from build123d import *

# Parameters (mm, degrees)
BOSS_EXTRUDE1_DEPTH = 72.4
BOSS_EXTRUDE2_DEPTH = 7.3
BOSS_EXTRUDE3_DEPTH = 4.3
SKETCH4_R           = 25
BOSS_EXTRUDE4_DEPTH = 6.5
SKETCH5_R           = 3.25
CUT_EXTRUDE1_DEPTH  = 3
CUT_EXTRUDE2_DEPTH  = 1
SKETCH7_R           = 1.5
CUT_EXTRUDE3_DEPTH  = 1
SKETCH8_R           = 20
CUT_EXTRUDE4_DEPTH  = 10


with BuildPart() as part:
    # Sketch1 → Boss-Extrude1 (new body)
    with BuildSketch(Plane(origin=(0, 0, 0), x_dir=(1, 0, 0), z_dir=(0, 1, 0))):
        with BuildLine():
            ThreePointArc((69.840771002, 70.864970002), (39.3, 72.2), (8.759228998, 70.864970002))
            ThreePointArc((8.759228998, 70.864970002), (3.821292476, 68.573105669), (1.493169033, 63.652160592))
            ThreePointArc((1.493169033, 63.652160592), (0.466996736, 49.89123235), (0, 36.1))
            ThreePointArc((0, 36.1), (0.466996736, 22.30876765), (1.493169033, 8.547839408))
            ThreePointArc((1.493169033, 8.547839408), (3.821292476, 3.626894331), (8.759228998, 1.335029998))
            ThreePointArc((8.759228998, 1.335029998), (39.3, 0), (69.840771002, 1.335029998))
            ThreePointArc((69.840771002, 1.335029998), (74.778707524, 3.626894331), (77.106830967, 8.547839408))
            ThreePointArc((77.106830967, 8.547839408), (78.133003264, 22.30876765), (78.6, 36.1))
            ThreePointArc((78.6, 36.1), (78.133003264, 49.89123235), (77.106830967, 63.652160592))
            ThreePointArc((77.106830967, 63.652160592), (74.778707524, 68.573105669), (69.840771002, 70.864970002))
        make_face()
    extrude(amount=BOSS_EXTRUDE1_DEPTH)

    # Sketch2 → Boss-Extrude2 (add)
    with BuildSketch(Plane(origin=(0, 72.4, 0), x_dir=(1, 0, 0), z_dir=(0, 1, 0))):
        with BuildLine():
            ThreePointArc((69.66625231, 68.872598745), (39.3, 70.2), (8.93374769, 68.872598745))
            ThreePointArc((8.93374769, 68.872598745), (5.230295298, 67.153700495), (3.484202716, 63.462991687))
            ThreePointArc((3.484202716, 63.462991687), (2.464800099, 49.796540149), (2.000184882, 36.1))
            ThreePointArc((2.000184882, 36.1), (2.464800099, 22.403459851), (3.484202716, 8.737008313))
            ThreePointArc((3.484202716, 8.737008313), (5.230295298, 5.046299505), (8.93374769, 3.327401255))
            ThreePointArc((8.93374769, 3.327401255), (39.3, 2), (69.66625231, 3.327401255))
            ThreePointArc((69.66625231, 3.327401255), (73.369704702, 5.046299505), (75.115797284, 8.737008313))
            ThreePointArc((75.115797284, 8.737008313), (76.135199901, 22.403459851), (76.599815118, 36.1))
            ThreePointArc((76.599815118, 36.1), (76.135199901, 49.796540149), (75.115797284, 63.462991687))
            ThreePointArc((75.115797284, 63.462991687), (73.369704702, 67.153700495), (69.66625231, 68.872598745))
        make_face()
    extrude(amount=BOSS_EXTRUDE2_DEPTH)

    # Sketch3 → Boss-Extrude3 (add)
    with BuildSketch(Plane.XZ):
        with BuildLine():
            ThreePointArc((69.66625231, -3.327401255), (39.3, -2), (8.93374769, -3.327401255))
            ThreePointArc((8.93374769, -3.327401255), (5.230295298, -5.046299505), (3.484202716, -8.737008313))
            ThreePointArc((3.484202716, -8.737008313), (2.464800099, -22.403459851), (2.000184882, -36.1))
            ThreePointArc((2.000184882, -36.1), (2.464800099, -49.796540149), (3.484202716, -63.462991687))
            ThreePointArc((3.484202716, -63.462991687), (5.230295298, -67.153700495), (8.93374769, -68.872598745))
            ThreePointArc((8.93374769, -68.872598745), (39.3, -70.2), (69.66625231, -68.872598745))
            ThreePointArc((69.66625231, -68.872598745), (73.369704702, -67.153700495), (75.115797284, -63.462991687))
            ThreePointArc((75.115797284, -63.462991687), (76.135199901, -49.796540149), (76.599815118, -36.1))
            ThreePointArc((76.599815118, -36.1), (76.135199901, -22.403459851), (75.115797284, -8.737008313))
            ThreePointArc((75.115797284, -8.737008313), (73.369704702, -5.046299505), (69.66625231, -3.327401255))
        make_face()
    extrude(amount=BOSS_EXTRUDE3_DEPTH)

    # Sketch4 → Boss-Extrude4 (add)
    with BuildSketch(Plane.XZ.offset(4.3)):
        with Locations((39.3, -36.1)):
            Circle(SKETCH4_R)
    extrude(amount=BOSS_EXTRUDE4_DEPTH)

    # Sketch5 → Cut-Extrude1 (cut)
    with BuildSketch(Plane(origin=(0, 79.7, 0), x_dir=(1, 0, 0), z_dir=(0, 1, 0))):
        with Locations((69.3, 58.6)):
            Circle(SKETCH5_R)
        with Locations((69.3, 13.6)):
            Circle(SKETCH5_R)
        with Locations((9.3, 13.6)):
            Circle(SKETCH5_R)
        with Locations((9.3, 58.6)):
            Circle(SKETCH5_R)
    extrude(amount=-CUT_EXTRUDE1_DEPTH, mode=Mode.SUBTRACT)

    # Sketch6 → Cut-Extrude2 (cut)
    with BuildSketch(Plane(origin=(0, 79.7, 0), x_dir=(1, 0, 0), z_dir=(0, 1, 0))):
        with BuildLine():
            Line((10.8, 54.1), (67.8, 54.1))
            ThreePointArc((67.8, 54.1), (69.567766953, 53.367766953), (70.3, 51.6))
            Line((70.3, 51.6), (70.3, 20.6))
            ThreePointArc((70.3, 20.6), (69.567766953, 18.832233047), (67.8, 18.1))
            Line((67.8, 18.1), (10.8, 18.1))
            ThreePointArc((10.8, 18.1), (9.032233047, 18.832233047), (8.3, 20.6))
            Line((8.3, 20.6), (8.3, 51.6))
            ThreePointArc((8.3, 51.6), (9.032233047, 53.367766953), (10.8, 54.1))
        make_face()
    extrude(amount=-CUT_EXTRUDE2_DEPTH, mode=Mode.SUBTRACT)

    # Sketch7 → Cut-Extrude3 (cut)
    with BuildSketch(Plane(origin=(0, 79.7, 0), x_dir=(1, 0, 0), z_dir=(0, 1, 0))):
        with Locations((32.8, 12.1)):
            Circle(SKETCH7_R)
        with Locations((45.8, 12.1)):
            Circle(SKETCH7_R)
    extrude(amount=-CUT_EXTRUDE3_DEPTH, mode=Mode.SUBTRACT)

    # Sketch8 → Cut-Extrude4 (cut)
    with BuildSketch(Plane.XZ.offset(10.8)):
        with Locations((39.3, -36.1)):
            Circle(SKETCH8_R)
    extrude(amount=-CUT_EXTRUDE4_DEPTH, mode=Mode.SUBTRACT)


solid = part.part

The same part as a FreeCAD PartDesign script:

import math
import FreeCAD as App
import Part
import Sketcher
from FreeCAD import Vector

doc = App.newDocument("Part")
body = doc.addObject("PartDesign::Body", "Body")

# Sketch on XZ plane
sketch1 = doc.addObject("Sketcher::SketchObject", "Sketch")
body.addObject(sketch1)
sketch1.AttachmentSupport = (doc.XZ_Plane, [""])
sketch1.MapMode = "FlatFace"
sketch1.addGeometry(Part.ArcOfCircle(Part.Circle(Vector(39, 278, 0), Vector(0, 0, 1), 350), math.radians(-95.01), math.radians(-84.99)), False)
sketch1.addGeometry(Part.ArcOfCircle(Part.Circle(Vector(9, -63, 0), Vector(0, 0, 1), 8), math.radians(-175), math.radians(-95)), False)
sketch1.addGeometry(Part.ArcOfCircle(Part.Circle(Vector(340, -31, 0), Vector(0, 0, 1), 340), math.radians(-179.22), math.radians(-174.57)), False)
sketch1.addGeometry(Part.ArcOfCircle(Part.Circle(Vector(340, -41, 0), Vector(0, 0, 1), 340), math.radians(174.57), math.radians(179.22)), False)
sketch1.addGeometry(Part.ArcOfCircle(Part.Circle(Vector(9, -9, 0), Vector(0, 0, 1), 8), math.radians(95), math.radians(175)), False)
sketch1.addGeometry(Part.ArcOfCircle(Part.Circle(Vector(39, -350, 0), Vector(0, 0, 1), 350), math.radians(84.99), math.radians(95.01)), False)
sketch1.addGeometry(Part.ArcOfCircle(Part.Circle(Vector(69, -9, 0), Vector(0, 0, 1), 8), math.radians(5), math.radians(85)), False)
sketch1.addGeometry(Part.ArcOfCircle(Part.Circle(Vector(-261, -41, 0), Vector(0, 0, 1), 340), math.radians(0.78), math.radians(5.43)), False)
sketch1.addGeometry(Part.ArcOfCircle(Part.Circle(Vector(-261, -31, 0), Vector(0, 0, 1), 340), math.radians(-5.43), math.radians(-0.78)), False)
sketch1.addGeometry(Part.ArcOfCircle(Part.Circle(Vector(69, -63, 0), Vector(0, 0, 1), 8), math.radians(-85), math.radians(-5)), False)
sketch1.addConstraint(Sketcher.Constraint("Tangent", 0, 1, 1, 2))
sketch1.addConstraint(Sketcher.Constraint("Tangent", 1, 1, 2, 2))
sketch1.addConstraint(Sketcher.Constraint("Coincident", 2, 1, 3, 2))
sketch1.addConstraint(Sketcher.Constraint("Tangent", 3, 1, 4, 2))
sketch1.addConstraint(Sketcher.Constraint("Tangent", 4, 1, 5, 2))
sketch1.addConstraint(Sketcher.Constraint("Tangent", 5, 1, 6, 2))
sketch1.addConstraint(Sketcher.Constraint("Tangent", 6, 1, 7, 2))
sketch1.addConstraint(Sketcher.Constraint("Coincident", 7, 1, 8, 2))
sketch1.addConstraint(Sketcher.Constraint("Tangent", 8, 1, 9, 2))
sketch1.addConstraint(Sketcher.Constraint("Tangent", 9, 1, 0, 2))
sketch1.addConstraint(Sketcher.Constraint("Equal", 2, 3))
sketch1.addConstraint(Sketcher.Constraint("Equal", 1, 4))
sketch1.addConstraint(Sketcher.Constraint("Equal", 0, 5))
sketch1.addConstraint(Sketcher.Constraint("Equal", 4, 6))
sketch1.addConstraint(Sketcher.Constraint("Equal", 3, 7))
sketch1.addConstraint(Sketcher.Constraint("Equal", 7, 8))
sketch1.addConstraint(Sketcher.Constraint("Equal", 6, 9))
sketch1.addConstraint(Sketcher.Constraint("PointOnObject", 2, 1, -2))
sketch1.addConstraint(Sketcher.Constraint("Horizontal", 4, 3, 6, 3))
sketch1.addConstraint(Sketcher.Constraint("Horizontal", 3, 3, 7, 3))
sketch1.addConstraint(Sketcher.Constraint("Horizontal", 2, 3, 8, 3))
sketch1.addConstraint(Sketcher.Constraint("Horizontal", 1, 3, 9, 3))
sketch1.addConstraint(Sketcher.Constraint("Horizontal", 2, 1, 7, 1))
sketch1.addConstraint(Sketcher.Constraint("Vertical", 2, 3, 3, 3))
sketch1.addConstraint(Sketcher.Constraint("Vertical", 1, 3, 4, 3))
sketch1.addConstraint(Sketcher.Constraint("Radius", 0, 350.0))
sketch1.addConstraint(Sketcher.Constraint("Radius", 1, 8.0))
sketch1.addConstraint(Sketcher.Constraint("DistanceX", -1, 1, 2, 3, 340.0))
sketch1.addConstraint(Sketcher.Constraint("DistanceY", 5, 3, -1, 1, 350.0))
sketch1.addConstraint(Sketcher.Constraint("DistanceX", -1, 1, 0, 3, 39.3))
sketch1.addConstraint(Sketcher.Constraint("DistanceY", -1, 1, 0, 3, 277.8))
sketch1.addConstraint(Sketcher.Constraint("Radius", 2, 340.031245))
pad1 = doc.addObject("PartDesign::Pad", "Pad")
body.addObject(pad1)
pad1.Profile = sketch1
pad1.Length = 72.4
pad1.Reversed = True

# Sketch on XZ plane
sketch2 = doc.addObject("Sketcher::SketchObject", "Sketch001")
body.addObject(sketch2)
sketch2.AttachmentSupport = (doc.XZ_Plane, [""])
sketch2.MapMode = "FlatFace"
sketch2.AttachmentOffset = App.Placement(Vector(0, 0, -72.4), App.Rotation())
sketch2.addGeometry(Part.ArcOfCircle(Part.Circle(Vector(39.3, 277.8, 0), Vector(0, 0, 1), 348), math.radians(-95.005959), math.radians(-84.994041)), False)
sketch2.addGeometry(Part.ArcOfCircle(Part.Circle(Vector(9.457304, -62.895485, 0), Vector(0, 0, 1), 6), math.radians(-174.572597), math.radians(-95.005959)), False)
sketch2.addGeometry(Part.ArcOfCircle(Part.Circle(Vector(340, -31.490492, 0), Vector(0, 0, 1), 338.031245), math.radians(-179.218671), math.radians(-174.572597)), False)
sketch2.addGeometry(Part.ArcOfCircle(Part.Circle(Vector(340, -40.709508, 0), Vector(0, 0, 1), 338.031245), math.radians(174.572597), math.radians(179.218671)), False)
sketch2.addGeometry(Part.ArcOfCircle(Part.Circle(Vector(9.457304, -9.304515, 0), Vector(0, 0, 1), 6), math.radians(95.005959), math.radians(174.572597)), False)
sketch2.addGeometry(Part.ArcOfCircle(Part.Circle(Vector(39.3, -350, 0), Vector(0, 0, 1), 348), math.radians(84.994041), math.radians(95.005959)), False)
sketch2.addGeometry(Part.ArcOfCircle(Part.Circle(Vector(69.142696, -9.304515, 0), Vector(0, 0, 1), 6), math.radians(5.427403), math.radians(84.994041)), False)
sketch2.addGeometry(Part.ArcOfCircle(Part.Circle(Vector(-261.4, -40.709508, 0), Vector(0, 0, 1), 338.031245), math.radians(0.781329), math.radians(5.427403)), False)
sketch2.addGeometry(Part.ArcOfCircle(Part.Circle(Vector(-261.4, -31.490492, 0), Vector(0, 0, 1), 338.031245), math.radians(-5.427403), math.radians(-0.781329)), False)
sketch2.addGeometry(Part.ArcOfCircle(Part.Circle(Vector(69.142696, -62.895485, 0), Vector(0, 0, 1), 6), math.radians(-84.994041), math.radians(-5.427403)), False)
sketch2.addConstraint(Sketcher.Constraint("Coincident", 0, 1, 1, 2))
sketch2.addConstraint(Sketcher.Constraint("Coincident", 1, 1, 2, 2))
sketch2.addConstraint(Sketcher.Constraint("Coincident", 2, 1, 3, 2))
sketch2.addConstraint(Sketcher.Constraint("Coincident", 3, 1, 4, 2))
sketch2.addConstraint(Sketcher.Constraint("Coincident", 4, 1, 5, 2))
sketch2.addConstraint(Sketcher.Constraint("Coincident", 5, 1, 6, 2))
sketch2.addConstraint(Sketcher.Constraint("Coincident", 6, 1, 7, 2))
sketch2.addConstraint(Sketcher.Constraint("Coincident", 7, 1, 8, 2))
sketch2.addConstraint(Sketcher.Constraint("Coincident", 8, 1, 9, 2))
sketch2.addConstraint(Sketcher.Constraint("Coincident", 9, 1, 0, 2))
sketch2.addConstraint(Sketcher.Constraint("Radius", 0, 348.0))
sketch2.addConstraint(Sketcher.Constraint("Radius", 1, 6.0))
sketch2.addConstraint(Sketcher.Constraint("Radius", 4, 6.0))
sketch2.addConstraint(Sketcher.Constraint("Radius", 5, 348.0))
sketch2.addConstraint(Sketcher.Constraint("Radius", 6, 6.0))
sketch2.addConstraint(Sketcher.Constraint("Radius", 9, 6.0))
sketch2.addConstraint(Sketcher.Constraint("DistanceX", -1, 1, 2, 3, 340.0))
sketch2.addConstraint(Sketcher.Constraint("DistanceX", -1, 1, 3, 3, 340.0))
sketch2.addConstraint(Sketcher.Constraint("DistanceY", 5, 3, -1, 1, 350.0))
sketch2.addConstraint(Sketcher.Constraint("DistanceX", -1, 1, 0, 3, 39.3))
sketch2.addConstraint(Sketcher.Constraint("DistanceY", -1, 1, 0, 3, 277.8))
sketch2.addConstraint(Sketcher.Constraint("DistanceX", -1, 1, 5, 3, 39.3))
sketch2.addConstraint(Sketcher.Constraint("DistanceX", 7, 3, -1, 1, 261.4))
sketch2.addConstraint(Sketcher.Constraint("DistanceX", 8, 3, -1, 1, 261.4))
sketch2.addConstraint(Sketcher.Constraint("DistanceY", 2, 1, -1, 1, 36.1))
sketch2.addConstraint(Sketcher.Constraint("DistanceY", 7, 1, -1, 1, 36.1))
sketch2.addConstraint(Sketcher.Constraint("Radius", 2, 338.031245))
sketch2.addConstraint(Sketcher.Constraint("Radius", 3, 338.031245))
sketch2.addConstraint(Sketcher.Constraint("Radius", 7, 338.031245))
sketch2.addConstraint(Sketcher.Constraint("Radius", 8, 338.031245))
sketch2.addConstraint(Sketcher.Constraint("DistanceY", 0, 1, -1, 1, 68.872599))
sketch2.addConstraint(Sketcher.Constraint("DistanceY", 4, 1, -1, 1, 3.327401))
sketch2.addConstraint(Sketcher.Constraint("DistanceY", 5, 1, -1, 1, 3.327401))
sketch2.addConstraint(Sketcher.Constraint("DistanceY", 9, 1, -1, 1, 68.872599))
sketch2.addConstraint(Sketcher.Constraint("DistanceX", 1, 1, 1, 3, 5.973101))
sketch2.addConstraint(Sketcher.Constraint("DistanceX", 3, 1, 4, 3, 5.973101))
sketch2.addConstraint(Sketcher.Constraint("DistanceX", 6, 3, 6, 1, 5.973101))
sketch2.addConstraint(Sketcher.Constraint("DistanceX", 9, 3, 8, 1, 5.973101))
sketch2.addConstraint(Sketcher.Constraint("DistanceY", 2, 3, -1, 1, 31.490492))
sketch2.addConstraint(Sketcher.Constraint("DistanceY", 7, 3, -1, 1, 40.709508))
pad2 = doc.addObject("PartDesign::Pad", "Pad001")
body.addObject(pad2)
pad2.Profile = sketch2
pad2.Length = 7.3
pad2.Reversed = True

# Sketch on XZ plane
sketch3 = doc.addObject("Sketcher::SketchObject", "Sketch002")
body.addObject(sketch3)
sketch3.AttachmentSupport = (doc.XZ_Plane, [""])
sketch3.MapMode = "FlatFace"
sketch3.addGeometry(Part.ArcOfCircle(Part.Circle(Vector(39.3, -350, 0), Vector(0, 0, 1), 348), math.radians(84.994041), math.radians(95.005959)), False)
sketch3.addGeometry(Part.ArcOfCircle(Part.Circle(Vector(9.457304, -9.304515, 0), Vector(0, 0, 1), 6), math.radians(95.005959), math.radians(174.572597)), False)
sketch3.addGeometry(Part.ArcOfCircle(Part.Circle(Vector(340, -40.709508, 0), Vector(0, 0, 1), 338.031245), math.radians(174.572597), math.radians(179.218671)), False)
sketch3.addGeometry(Part.ArcOfCircle(Part.Circle(Vector(340, -31.490492, 0), Vector(0, 0, 1), 338.031245), math.radians(-179.218671), math.radians(-174.572597)), False)
sketch3.addGeometry(Part.ArcOfCircle(Part.Circle(Vector(9.457304, -62.895485, 0), Vector(0, 0, 1), 6), math.radians(-174.572597), math.radians(-95.005959)), False)
sketch3.addGeometry(Part.ArcOfCircle(Part.Circle(Vector(39.3, 277.8, 0), Vector(0, 0, 1), 348), math.radians(-95.005959), math.radians(-84.994041)), False)
sketch3.addGeometry(Part.ArcOfCircle(Part.Circle(Vector(69.142696, -62.895485, 0), Vector(0, 0, 1), 6), math.radians(-84.994041), math.radians(-5.427403)), False)
sketch3.addGeometry(Part.ArcOfCircle(Part.Circle(Vector(-261.4, -31.490492, 0), Vector(0, 0, 1), 338.031245), math.radians(-5.427403), math.radians(-0.781329)), False)
sketch3.addGeometry(Part.ArcOfCircle(Part.Circle(Vector(-261.4, -40.709508, 0), Vector(0, 0, 1), 338.031245), math.radians(0.781329), math.radians(5.427403)), False)
sketch3.addGeometry(Part.ArcOfCircle(Part.Circle(Vector(69.142696, -9.304515, 0), Vector(0, 0, 1), 6), math.radians(5.427403), math.radians(84.994041)), False)
sketch3.addConstraint(Sketcher.Constraint("Coincident", 0, 2, 1, 1))
sketch3.addConstraint(Sketcher.Constraint("Coincident", 1, 2, 2, 1))
sketch3.addConstraint(Sketcher.Constraint("Coincident", 2, 2, 3, 1))
sketch3.addConstraint(Sketcher.Constraint("Coincident", 3, 2, 4, 1))
sketch3.addConstraint(Sketcher.Constraint("Coincident", 4, 2, 5, 1))
sketch3.addConstraint(Sketcher.Constraint("Coincident", 5, 2, 6, 1))
sketch3.addConstraint(Sketcher.Constraint("Coincident", 6, 2, 7, 1))
sketch3.addConstraint(Sketcher.Constraint("Coincident", 7, 2, 8, 1))
sketch3.addConstraint(Sketcher.Constraint("Coincident", 8, 2, 9, 1))
sketch3.addConstraint(Sketcher.Constraint("Coincident", 9, 2, 0, 1))
sketch3.addConstraint(Sketcher.Constraint("Radius", 0, 348.0))
sketch3.addConstraint(Sketcher.Constraint("Radius", 1, 6.0))
sketch3.addConstraint(Sketcher.Constraint("Radius", 4, 6.0))
sketch3.addConstraint(Sketcher.Constraint("Radius", 5, 348.0))
sketch3.addConstraint(Sketcher.Constraint("Radius", 6, 6.0))
sketch3.addConstraint(Sketcher.Constraint("Radius", 9, 6.0))
sketch3.addConstraint(Sketcher.Constraint("DistanceY", 0, 3, -1, 1, 350.0))
sketch3.addConstraint(Sketcher.Constraint("DistanceX", -1, 1, 2, 3, 340.0))
sketch3.addConstraint(Sketcher.Constraint("DistanceX", -1, 1, 3, 3, 340.0))
sketch3.addConstraint(Sketcher.Constraint("DistanceX", -1, 1, 0, 3, 39.3))
sketch3.addConstraint(Sketcher.Constraint("DistanceX", -1, 1, 5, 3, 39.3))
sketch3.addConstraint(Sketcher.Constraint("DistanceY", -1, 1, 5, 3, 277.8))
sketch3.addConstraint(Sketcher.Constraint("DistanceX", 7, 3, -1, 1, 261.4))
sketch3.addConstraint(Sketcher.Constraint("DistanceX", 8, 3, -1, 1, 261.4))
sketch3.addConstraint(Sketcher.Constraint("DistanceY", 2, 2, -1, 1, 36.1))
sketch3.addConstraint(Sketcher.Constraint("DistanceY", 7, 2, -1, 1, 36.1))
sketch3.addConstraint(Sketcher.Constraint("Radius", 2, 338.031245))
sketch3.addConstraint(Sketcher.Constraint("Radius", 3, 338.031245))
sketch3.addConstraint(Sketcher.Constraint("Radius", 7, 338.031245))
sketch3.addConstraint(Sketcher.Constraint("Radius", 8, 338.031245))
sketch3.addConstraint(Sketcher.Constraint("DistanceY", 0, 2, -1, 1, 3.327401))
sketch3.addConstraint(Sketcher.Constraint("DistanceY", 4, 2, -1, 1, 68.872599))
sketch3.addConstraint(Sketcher.Constraint("DistanceY", 5, 2, -1, 1, 68.872599))
sketch3.addConstraint(Sketcher.Constraint("DistanceY", 9, 2, -1, 1, 3.327401))
sketch3.addConstraint(Sketcher.Constraint("DistanceX", 1, 2, 1, 3, 5.973101))
sketch3.addConstraint(Sketcher.Constraint("DistanceX", 3, 2, 4, 3, 5.973101))
sketch3.addConstraint(Sketcher.Constraint("DistanceX", 6, 3, 6, 2, 5.973101))
sketch3.addConstraint(Sketcher.Constraint("DistanceX", 9, 3, 8, 2, 5.973101))
sketch3.addConstraint(Sketcher.Constraint("DistanceY", 2, 3, -1, 1, 40.709508))
sketch3.addConstraint(Sketcher.Constraint("DistanceY", 7, 3, -1, 1, 31.490492))
pad3 = doc.addObject("PartDesign::Pad", "Pad002")
body.addObject(pad3)
pad3.Profile = sketch3
pad3.Length = 4.3

# Sketch on XZ plane
sketch4 = doc.addObject("Sketcher::SketchObject", "Sketch003")
body.addObject(sketch4)
sketch4.AttachmentSupport = (doc.XZ_Plane, [""])
sketch4.MapMode = "FlatFace"
sketch4.AttachmentOffset = App.Placement(Vector(0, 0, 4.3), App.Rotation())
sketch4.addGeometry(Part.Circle(Vector(39, -36, 0), Vector(0, 0, 1), 25), False)
sketch4.addConstraint(Sketcher.Constraint("Diameter", 0, 50.0))
sketch4.addConstraint(Sketcher.Constraint("DistanceX", -1, 1, 0, 3, 39.3))
sketch4.addConstraint(Sketcher.Constraint("DistanceY", 0, 3, -1, 1, 36.1))
pad4 = doc.addObject("PartDesign::Pad", "Pad003")
body.addObject(pad4)
pad4.Profile = sketch4
pad4.Length = 6.5

# Sketch on XZ plane
sketch5 = doc.addObject("Sketcher::SketchObject", "Sketch004")
body.addObject(sketch5)
sketch5.AttachmentSupport = (doc.XZ_Plane, [""])
sketch5.MapMode = "FlatFace"
sketch5.AttachmentOffset = App.Placement(Vector(0, 0, -79.7), App.Rotation())
sketch5.addGeometry(Part.Circle(Vector(69.3, -58.6, 0), Vector(0, 0, 1), 3.2), False)
sketch5.addGeometry(Part.Circle(Vector(69.3, -13.6, 0), Vector(0, 0, 1), 3.2), False)
sketch5.addGeometry(Part.Circle(Vector(9.3, -13.6, 0), Vector(0, 0, 1), 3.2), False)
sketch5.addGeometry(Part.Circle(Vector(9.3, -58.6, 0), Vector(0, 0, 1), 3.2), False)
sketch5.addConstraint(Sketcher.Constraint("Equal", 0, 1))
sketch5.addConstraint(Sketcher.Constraint("Equal", 1, 2))
sketch5.addConstraint(Sketcher.Constraint("Equal", 2, 3))
sketch5.addConstraint(Sketcher.Constraint("Horizontal", 1, 3, 2, 3))
sketch5.addConstraint(Sketcher.Constraint("Horizontal", 0, 3, 3, 3))
sketch5.addConstraint(Sketcher.Constraint("Vertical", 0, 3, 1, 3))
sketch5.addConstraint(Sketcher.Constraint("Vertical", 2, 3, 3, 3))
sketch5.addConstraint(Sketcher.Constraint("Diameter", 0, 6.5))
sketch5.addConstraint(Sketcher.Constraint("DistanceY", 0, 3, 1, 3, 45.0))
sketch5.addConstraint(Sketcher.Constraint("DistanceX", 2, 3, 1, 3, 60.0))
sketch5.addConstraint(Sketcher.Constraint("DistanceX", -1, 1, 0, 3, 69.3))
sketch5.addConstraint(Sketcher.Constraint("DistanceY", 0, 3, -1, 1, 58.6))
pocket1 = doc.addObject("PartDesign::Pocket", "Pocket")
body.addObject(pocket1)
pocket1.Profile = sketch5
pocket1.Length = 3
pocket1.Reversed = True

# Sketch on XZ plane
sketch6 = doc.addObject("Sketcher::SketchObject", "Sketch005")
body.addObject(sketch6)
sketch6.AttachmentSupport = (doc.XZ_Plane, [""])
sketch6.MapMode = "FlatFace"
sketch6.AttachmentOffset = App.Placement(Vector(0, 0, -79.7), App.Rotation())
sketch6.addGeometry(Part.LineSegment(Vector(67.8, -54.1, 0), Vector(10.8, -54.1, 0)), False)
sketch6.addGeometry(Part.ArcOfCircle(Part.Circle(Vector(10.8, -51.6, 0), Vector(0, 0, 1), 2.5), math.radians(180), math.radians(270)), False)
sketch6.addGeometry(Part.LineSegment(Vector(8.3, -51.6, 0), Vector(8.3, -20.6, 0)), False)
sketch6.addGeometry(Part.ArcOfCircle(Part.Circle(Vector(10.8, -20.6, 0), Vector(0, 0, 1), 2.5), math.radians(90), math.radians(180)), False)
sketch6.addGeometry(Part.LineSegment(Vector(10.8, -18.1, 0), Vector(67.8, -18.1, 0)), False)
sketch6.addGeometry(Part.ArcOfCircle(Part.Circle(Vector(67.8, -20.6, 0), Vector(0, 0, 1), 2.5), math.radians(0), math.radians(90)), False)
sketch6.addGeometry(Part.LineSegment(Vector(70.3, -20.6, 0), Vector(70.3, -51.6, 0)), False)
sketch6.addGeometry(Part.ArcOfCircle(Part.Circle(Vector(67.8, -51.6, 0), Vector(0, 0, 1), 2.5), math.radians(-90), math.radians(0)), False)
sketch6.addConstraint(Sketcher.Constraint("Tangent", 0, 2, 1, 2))
sketch6.addConstraint(Sketcher.Constraint("Tangent", 1, 1, 2, 1))
sketch6.addConstraint(Sketcher.Constraint("Tangent", 2, 2, 3, 2))
sketch6.addConstraint(Sketcher.Constraint("Tangent", 3, 1, 4, 1))
sketch6.addConstraint(Sketcher.Constraint("Tangent", 4, 2, 5, 2))
sketch6.addConstraint(Sketcher.Constraint("Tangent", 5, 1, 6, 1))
sketch6.addConstraint(Sketcher.Constraint("Tangent", 6, 2, 7, 2))
sketch6.addConstraint(Sketcher.Constraint("Tangent", 7, 1, 0, 1))
sketch6.addConstraint(Sketcher.Constraint("Horizontal", 0))
sketch6.addConstraint(Sketcher.Constraint("Vertical", 2))
sketch6.addConstraint(Sketcher.Constraint("Horizontal", 4))
sketch6.addConstraint(Sketcher.Constraint("Vertical", 6))
sketch6.addConstraint(Sketcher.Constraint("Equal", 1, 3))
sketch6.addConstraint(Sketcher.Constraint("Equal", 3, 5))
sketch6.addConstraint(Sketcher.Constraint("Equal", 5, 7))
sketch6.addConstraint(Sketcher.Constraint("Radius", 1, 2.5))
sketch6.addConstraint(Sketcher.Constraint("DistanceX", 0, 2, 0, 1, 57.0))
sketch6.addConstraint(Sketcher.Constraint("DistanceY", 2, 1, 2, 2, 31.0))
sketch6.addConstraint(Sketcher.Constraint("DistanceX", -1, 1, 1, 3, 10.8))
sketch6.addConstraint(Sketcher.Constraint("DistanceY", 1, 3, -1, 1, 51.6))
pocket2 = doc.addObject("PartDesign::Pocket", "Pocket001")
body.addObject(pocket2)
pocket2.Profile = sketch6
pocket2.Length = 1
pocket2.Reversed = True

# Sketch on XZ plane
sketch7 = doc.addObject("Sketcher::SketchObject", "Sketch006")
body.addObject(sketch7)
sketch7.AttachmentSupport = (doc.XZ_Plane, [""])
sketch7.MapMode = "FlatFace"
sketch7.AttachmentOffset = App.Placement(Vector(0, 0, -79.7), App.Rotation())
sketch7.addGeometry(Part.Circle(Vector(32.8, -12.1, 0), Vector(0, 0, 1), 1.5), False)
sketch7.addGeometry(Part.Circle(Vector(45.8, -12.1, 0), Vector(0, 0, 1), 1.5), False)
sketch7.addConstraint(Sketcher.Constraint("Equal", 0, 1))
sketch7.addConstraint(Sketcher.Constraint("Horizontal", 0, 3, 1, 3))
sketch7.addConstraint(Sketcher.Constraint("Diameter", 0, 3.0))
sketch7.addConstraint(Sketcher.Constraint("DistanceX", 0, 3, 1, 3, 13.0))
sketch7.addConstraint(Sketcher.Constraint("DistanceX", -1, 1, 0, 3, 32.8))
sketch7.addConstraint(Sketcher.Constraint("DistanceY", 0, 3, -1, 1, 12.1))
pocket3 = doc.addObject("PartDesign::Pocket", "Pocket002")
body.addObject(pocket3)
pocket3.Profile = sketch7
pocket3.Length = 1
pocket3.Reversed = True

# Sketch on XZ plane
sketch8 = doc.addObject("Sketcher::SketchObject", "Sketch007")
body.addObject(sketch8)
sketch8.AttachmentSupport = (doc.XZ_Plane, [""])
sketch8.MapMode = "FlatFace"
sketch8.AttachmentOffset = App.Placement(Vector(0, 0, 10.8), App.Rotation())
sketch8.addGeometry(Part.Circle(Vector(39, -36, 0), Vector(0, 0, 1), 20), False)
sketch8.addConstraint(Sketcher.Constraint("Diameter", 0, 40.0))
sketch8.addConstraint(Sketcher.Constraint("DistanceX", -1, 1, 0, 3, 39.3))
sketch8.addConstraint(Sketcher.Constraint("DistanceY", 0, 3, -1, 1, 36.1))
pocket4 = doc.addObject("PartDesign::Pocket", "Pocket003")
body.addObject(pocket4)
pocket4.Profile = sketch8
pocket4.Length = 10

doc.recompute()
